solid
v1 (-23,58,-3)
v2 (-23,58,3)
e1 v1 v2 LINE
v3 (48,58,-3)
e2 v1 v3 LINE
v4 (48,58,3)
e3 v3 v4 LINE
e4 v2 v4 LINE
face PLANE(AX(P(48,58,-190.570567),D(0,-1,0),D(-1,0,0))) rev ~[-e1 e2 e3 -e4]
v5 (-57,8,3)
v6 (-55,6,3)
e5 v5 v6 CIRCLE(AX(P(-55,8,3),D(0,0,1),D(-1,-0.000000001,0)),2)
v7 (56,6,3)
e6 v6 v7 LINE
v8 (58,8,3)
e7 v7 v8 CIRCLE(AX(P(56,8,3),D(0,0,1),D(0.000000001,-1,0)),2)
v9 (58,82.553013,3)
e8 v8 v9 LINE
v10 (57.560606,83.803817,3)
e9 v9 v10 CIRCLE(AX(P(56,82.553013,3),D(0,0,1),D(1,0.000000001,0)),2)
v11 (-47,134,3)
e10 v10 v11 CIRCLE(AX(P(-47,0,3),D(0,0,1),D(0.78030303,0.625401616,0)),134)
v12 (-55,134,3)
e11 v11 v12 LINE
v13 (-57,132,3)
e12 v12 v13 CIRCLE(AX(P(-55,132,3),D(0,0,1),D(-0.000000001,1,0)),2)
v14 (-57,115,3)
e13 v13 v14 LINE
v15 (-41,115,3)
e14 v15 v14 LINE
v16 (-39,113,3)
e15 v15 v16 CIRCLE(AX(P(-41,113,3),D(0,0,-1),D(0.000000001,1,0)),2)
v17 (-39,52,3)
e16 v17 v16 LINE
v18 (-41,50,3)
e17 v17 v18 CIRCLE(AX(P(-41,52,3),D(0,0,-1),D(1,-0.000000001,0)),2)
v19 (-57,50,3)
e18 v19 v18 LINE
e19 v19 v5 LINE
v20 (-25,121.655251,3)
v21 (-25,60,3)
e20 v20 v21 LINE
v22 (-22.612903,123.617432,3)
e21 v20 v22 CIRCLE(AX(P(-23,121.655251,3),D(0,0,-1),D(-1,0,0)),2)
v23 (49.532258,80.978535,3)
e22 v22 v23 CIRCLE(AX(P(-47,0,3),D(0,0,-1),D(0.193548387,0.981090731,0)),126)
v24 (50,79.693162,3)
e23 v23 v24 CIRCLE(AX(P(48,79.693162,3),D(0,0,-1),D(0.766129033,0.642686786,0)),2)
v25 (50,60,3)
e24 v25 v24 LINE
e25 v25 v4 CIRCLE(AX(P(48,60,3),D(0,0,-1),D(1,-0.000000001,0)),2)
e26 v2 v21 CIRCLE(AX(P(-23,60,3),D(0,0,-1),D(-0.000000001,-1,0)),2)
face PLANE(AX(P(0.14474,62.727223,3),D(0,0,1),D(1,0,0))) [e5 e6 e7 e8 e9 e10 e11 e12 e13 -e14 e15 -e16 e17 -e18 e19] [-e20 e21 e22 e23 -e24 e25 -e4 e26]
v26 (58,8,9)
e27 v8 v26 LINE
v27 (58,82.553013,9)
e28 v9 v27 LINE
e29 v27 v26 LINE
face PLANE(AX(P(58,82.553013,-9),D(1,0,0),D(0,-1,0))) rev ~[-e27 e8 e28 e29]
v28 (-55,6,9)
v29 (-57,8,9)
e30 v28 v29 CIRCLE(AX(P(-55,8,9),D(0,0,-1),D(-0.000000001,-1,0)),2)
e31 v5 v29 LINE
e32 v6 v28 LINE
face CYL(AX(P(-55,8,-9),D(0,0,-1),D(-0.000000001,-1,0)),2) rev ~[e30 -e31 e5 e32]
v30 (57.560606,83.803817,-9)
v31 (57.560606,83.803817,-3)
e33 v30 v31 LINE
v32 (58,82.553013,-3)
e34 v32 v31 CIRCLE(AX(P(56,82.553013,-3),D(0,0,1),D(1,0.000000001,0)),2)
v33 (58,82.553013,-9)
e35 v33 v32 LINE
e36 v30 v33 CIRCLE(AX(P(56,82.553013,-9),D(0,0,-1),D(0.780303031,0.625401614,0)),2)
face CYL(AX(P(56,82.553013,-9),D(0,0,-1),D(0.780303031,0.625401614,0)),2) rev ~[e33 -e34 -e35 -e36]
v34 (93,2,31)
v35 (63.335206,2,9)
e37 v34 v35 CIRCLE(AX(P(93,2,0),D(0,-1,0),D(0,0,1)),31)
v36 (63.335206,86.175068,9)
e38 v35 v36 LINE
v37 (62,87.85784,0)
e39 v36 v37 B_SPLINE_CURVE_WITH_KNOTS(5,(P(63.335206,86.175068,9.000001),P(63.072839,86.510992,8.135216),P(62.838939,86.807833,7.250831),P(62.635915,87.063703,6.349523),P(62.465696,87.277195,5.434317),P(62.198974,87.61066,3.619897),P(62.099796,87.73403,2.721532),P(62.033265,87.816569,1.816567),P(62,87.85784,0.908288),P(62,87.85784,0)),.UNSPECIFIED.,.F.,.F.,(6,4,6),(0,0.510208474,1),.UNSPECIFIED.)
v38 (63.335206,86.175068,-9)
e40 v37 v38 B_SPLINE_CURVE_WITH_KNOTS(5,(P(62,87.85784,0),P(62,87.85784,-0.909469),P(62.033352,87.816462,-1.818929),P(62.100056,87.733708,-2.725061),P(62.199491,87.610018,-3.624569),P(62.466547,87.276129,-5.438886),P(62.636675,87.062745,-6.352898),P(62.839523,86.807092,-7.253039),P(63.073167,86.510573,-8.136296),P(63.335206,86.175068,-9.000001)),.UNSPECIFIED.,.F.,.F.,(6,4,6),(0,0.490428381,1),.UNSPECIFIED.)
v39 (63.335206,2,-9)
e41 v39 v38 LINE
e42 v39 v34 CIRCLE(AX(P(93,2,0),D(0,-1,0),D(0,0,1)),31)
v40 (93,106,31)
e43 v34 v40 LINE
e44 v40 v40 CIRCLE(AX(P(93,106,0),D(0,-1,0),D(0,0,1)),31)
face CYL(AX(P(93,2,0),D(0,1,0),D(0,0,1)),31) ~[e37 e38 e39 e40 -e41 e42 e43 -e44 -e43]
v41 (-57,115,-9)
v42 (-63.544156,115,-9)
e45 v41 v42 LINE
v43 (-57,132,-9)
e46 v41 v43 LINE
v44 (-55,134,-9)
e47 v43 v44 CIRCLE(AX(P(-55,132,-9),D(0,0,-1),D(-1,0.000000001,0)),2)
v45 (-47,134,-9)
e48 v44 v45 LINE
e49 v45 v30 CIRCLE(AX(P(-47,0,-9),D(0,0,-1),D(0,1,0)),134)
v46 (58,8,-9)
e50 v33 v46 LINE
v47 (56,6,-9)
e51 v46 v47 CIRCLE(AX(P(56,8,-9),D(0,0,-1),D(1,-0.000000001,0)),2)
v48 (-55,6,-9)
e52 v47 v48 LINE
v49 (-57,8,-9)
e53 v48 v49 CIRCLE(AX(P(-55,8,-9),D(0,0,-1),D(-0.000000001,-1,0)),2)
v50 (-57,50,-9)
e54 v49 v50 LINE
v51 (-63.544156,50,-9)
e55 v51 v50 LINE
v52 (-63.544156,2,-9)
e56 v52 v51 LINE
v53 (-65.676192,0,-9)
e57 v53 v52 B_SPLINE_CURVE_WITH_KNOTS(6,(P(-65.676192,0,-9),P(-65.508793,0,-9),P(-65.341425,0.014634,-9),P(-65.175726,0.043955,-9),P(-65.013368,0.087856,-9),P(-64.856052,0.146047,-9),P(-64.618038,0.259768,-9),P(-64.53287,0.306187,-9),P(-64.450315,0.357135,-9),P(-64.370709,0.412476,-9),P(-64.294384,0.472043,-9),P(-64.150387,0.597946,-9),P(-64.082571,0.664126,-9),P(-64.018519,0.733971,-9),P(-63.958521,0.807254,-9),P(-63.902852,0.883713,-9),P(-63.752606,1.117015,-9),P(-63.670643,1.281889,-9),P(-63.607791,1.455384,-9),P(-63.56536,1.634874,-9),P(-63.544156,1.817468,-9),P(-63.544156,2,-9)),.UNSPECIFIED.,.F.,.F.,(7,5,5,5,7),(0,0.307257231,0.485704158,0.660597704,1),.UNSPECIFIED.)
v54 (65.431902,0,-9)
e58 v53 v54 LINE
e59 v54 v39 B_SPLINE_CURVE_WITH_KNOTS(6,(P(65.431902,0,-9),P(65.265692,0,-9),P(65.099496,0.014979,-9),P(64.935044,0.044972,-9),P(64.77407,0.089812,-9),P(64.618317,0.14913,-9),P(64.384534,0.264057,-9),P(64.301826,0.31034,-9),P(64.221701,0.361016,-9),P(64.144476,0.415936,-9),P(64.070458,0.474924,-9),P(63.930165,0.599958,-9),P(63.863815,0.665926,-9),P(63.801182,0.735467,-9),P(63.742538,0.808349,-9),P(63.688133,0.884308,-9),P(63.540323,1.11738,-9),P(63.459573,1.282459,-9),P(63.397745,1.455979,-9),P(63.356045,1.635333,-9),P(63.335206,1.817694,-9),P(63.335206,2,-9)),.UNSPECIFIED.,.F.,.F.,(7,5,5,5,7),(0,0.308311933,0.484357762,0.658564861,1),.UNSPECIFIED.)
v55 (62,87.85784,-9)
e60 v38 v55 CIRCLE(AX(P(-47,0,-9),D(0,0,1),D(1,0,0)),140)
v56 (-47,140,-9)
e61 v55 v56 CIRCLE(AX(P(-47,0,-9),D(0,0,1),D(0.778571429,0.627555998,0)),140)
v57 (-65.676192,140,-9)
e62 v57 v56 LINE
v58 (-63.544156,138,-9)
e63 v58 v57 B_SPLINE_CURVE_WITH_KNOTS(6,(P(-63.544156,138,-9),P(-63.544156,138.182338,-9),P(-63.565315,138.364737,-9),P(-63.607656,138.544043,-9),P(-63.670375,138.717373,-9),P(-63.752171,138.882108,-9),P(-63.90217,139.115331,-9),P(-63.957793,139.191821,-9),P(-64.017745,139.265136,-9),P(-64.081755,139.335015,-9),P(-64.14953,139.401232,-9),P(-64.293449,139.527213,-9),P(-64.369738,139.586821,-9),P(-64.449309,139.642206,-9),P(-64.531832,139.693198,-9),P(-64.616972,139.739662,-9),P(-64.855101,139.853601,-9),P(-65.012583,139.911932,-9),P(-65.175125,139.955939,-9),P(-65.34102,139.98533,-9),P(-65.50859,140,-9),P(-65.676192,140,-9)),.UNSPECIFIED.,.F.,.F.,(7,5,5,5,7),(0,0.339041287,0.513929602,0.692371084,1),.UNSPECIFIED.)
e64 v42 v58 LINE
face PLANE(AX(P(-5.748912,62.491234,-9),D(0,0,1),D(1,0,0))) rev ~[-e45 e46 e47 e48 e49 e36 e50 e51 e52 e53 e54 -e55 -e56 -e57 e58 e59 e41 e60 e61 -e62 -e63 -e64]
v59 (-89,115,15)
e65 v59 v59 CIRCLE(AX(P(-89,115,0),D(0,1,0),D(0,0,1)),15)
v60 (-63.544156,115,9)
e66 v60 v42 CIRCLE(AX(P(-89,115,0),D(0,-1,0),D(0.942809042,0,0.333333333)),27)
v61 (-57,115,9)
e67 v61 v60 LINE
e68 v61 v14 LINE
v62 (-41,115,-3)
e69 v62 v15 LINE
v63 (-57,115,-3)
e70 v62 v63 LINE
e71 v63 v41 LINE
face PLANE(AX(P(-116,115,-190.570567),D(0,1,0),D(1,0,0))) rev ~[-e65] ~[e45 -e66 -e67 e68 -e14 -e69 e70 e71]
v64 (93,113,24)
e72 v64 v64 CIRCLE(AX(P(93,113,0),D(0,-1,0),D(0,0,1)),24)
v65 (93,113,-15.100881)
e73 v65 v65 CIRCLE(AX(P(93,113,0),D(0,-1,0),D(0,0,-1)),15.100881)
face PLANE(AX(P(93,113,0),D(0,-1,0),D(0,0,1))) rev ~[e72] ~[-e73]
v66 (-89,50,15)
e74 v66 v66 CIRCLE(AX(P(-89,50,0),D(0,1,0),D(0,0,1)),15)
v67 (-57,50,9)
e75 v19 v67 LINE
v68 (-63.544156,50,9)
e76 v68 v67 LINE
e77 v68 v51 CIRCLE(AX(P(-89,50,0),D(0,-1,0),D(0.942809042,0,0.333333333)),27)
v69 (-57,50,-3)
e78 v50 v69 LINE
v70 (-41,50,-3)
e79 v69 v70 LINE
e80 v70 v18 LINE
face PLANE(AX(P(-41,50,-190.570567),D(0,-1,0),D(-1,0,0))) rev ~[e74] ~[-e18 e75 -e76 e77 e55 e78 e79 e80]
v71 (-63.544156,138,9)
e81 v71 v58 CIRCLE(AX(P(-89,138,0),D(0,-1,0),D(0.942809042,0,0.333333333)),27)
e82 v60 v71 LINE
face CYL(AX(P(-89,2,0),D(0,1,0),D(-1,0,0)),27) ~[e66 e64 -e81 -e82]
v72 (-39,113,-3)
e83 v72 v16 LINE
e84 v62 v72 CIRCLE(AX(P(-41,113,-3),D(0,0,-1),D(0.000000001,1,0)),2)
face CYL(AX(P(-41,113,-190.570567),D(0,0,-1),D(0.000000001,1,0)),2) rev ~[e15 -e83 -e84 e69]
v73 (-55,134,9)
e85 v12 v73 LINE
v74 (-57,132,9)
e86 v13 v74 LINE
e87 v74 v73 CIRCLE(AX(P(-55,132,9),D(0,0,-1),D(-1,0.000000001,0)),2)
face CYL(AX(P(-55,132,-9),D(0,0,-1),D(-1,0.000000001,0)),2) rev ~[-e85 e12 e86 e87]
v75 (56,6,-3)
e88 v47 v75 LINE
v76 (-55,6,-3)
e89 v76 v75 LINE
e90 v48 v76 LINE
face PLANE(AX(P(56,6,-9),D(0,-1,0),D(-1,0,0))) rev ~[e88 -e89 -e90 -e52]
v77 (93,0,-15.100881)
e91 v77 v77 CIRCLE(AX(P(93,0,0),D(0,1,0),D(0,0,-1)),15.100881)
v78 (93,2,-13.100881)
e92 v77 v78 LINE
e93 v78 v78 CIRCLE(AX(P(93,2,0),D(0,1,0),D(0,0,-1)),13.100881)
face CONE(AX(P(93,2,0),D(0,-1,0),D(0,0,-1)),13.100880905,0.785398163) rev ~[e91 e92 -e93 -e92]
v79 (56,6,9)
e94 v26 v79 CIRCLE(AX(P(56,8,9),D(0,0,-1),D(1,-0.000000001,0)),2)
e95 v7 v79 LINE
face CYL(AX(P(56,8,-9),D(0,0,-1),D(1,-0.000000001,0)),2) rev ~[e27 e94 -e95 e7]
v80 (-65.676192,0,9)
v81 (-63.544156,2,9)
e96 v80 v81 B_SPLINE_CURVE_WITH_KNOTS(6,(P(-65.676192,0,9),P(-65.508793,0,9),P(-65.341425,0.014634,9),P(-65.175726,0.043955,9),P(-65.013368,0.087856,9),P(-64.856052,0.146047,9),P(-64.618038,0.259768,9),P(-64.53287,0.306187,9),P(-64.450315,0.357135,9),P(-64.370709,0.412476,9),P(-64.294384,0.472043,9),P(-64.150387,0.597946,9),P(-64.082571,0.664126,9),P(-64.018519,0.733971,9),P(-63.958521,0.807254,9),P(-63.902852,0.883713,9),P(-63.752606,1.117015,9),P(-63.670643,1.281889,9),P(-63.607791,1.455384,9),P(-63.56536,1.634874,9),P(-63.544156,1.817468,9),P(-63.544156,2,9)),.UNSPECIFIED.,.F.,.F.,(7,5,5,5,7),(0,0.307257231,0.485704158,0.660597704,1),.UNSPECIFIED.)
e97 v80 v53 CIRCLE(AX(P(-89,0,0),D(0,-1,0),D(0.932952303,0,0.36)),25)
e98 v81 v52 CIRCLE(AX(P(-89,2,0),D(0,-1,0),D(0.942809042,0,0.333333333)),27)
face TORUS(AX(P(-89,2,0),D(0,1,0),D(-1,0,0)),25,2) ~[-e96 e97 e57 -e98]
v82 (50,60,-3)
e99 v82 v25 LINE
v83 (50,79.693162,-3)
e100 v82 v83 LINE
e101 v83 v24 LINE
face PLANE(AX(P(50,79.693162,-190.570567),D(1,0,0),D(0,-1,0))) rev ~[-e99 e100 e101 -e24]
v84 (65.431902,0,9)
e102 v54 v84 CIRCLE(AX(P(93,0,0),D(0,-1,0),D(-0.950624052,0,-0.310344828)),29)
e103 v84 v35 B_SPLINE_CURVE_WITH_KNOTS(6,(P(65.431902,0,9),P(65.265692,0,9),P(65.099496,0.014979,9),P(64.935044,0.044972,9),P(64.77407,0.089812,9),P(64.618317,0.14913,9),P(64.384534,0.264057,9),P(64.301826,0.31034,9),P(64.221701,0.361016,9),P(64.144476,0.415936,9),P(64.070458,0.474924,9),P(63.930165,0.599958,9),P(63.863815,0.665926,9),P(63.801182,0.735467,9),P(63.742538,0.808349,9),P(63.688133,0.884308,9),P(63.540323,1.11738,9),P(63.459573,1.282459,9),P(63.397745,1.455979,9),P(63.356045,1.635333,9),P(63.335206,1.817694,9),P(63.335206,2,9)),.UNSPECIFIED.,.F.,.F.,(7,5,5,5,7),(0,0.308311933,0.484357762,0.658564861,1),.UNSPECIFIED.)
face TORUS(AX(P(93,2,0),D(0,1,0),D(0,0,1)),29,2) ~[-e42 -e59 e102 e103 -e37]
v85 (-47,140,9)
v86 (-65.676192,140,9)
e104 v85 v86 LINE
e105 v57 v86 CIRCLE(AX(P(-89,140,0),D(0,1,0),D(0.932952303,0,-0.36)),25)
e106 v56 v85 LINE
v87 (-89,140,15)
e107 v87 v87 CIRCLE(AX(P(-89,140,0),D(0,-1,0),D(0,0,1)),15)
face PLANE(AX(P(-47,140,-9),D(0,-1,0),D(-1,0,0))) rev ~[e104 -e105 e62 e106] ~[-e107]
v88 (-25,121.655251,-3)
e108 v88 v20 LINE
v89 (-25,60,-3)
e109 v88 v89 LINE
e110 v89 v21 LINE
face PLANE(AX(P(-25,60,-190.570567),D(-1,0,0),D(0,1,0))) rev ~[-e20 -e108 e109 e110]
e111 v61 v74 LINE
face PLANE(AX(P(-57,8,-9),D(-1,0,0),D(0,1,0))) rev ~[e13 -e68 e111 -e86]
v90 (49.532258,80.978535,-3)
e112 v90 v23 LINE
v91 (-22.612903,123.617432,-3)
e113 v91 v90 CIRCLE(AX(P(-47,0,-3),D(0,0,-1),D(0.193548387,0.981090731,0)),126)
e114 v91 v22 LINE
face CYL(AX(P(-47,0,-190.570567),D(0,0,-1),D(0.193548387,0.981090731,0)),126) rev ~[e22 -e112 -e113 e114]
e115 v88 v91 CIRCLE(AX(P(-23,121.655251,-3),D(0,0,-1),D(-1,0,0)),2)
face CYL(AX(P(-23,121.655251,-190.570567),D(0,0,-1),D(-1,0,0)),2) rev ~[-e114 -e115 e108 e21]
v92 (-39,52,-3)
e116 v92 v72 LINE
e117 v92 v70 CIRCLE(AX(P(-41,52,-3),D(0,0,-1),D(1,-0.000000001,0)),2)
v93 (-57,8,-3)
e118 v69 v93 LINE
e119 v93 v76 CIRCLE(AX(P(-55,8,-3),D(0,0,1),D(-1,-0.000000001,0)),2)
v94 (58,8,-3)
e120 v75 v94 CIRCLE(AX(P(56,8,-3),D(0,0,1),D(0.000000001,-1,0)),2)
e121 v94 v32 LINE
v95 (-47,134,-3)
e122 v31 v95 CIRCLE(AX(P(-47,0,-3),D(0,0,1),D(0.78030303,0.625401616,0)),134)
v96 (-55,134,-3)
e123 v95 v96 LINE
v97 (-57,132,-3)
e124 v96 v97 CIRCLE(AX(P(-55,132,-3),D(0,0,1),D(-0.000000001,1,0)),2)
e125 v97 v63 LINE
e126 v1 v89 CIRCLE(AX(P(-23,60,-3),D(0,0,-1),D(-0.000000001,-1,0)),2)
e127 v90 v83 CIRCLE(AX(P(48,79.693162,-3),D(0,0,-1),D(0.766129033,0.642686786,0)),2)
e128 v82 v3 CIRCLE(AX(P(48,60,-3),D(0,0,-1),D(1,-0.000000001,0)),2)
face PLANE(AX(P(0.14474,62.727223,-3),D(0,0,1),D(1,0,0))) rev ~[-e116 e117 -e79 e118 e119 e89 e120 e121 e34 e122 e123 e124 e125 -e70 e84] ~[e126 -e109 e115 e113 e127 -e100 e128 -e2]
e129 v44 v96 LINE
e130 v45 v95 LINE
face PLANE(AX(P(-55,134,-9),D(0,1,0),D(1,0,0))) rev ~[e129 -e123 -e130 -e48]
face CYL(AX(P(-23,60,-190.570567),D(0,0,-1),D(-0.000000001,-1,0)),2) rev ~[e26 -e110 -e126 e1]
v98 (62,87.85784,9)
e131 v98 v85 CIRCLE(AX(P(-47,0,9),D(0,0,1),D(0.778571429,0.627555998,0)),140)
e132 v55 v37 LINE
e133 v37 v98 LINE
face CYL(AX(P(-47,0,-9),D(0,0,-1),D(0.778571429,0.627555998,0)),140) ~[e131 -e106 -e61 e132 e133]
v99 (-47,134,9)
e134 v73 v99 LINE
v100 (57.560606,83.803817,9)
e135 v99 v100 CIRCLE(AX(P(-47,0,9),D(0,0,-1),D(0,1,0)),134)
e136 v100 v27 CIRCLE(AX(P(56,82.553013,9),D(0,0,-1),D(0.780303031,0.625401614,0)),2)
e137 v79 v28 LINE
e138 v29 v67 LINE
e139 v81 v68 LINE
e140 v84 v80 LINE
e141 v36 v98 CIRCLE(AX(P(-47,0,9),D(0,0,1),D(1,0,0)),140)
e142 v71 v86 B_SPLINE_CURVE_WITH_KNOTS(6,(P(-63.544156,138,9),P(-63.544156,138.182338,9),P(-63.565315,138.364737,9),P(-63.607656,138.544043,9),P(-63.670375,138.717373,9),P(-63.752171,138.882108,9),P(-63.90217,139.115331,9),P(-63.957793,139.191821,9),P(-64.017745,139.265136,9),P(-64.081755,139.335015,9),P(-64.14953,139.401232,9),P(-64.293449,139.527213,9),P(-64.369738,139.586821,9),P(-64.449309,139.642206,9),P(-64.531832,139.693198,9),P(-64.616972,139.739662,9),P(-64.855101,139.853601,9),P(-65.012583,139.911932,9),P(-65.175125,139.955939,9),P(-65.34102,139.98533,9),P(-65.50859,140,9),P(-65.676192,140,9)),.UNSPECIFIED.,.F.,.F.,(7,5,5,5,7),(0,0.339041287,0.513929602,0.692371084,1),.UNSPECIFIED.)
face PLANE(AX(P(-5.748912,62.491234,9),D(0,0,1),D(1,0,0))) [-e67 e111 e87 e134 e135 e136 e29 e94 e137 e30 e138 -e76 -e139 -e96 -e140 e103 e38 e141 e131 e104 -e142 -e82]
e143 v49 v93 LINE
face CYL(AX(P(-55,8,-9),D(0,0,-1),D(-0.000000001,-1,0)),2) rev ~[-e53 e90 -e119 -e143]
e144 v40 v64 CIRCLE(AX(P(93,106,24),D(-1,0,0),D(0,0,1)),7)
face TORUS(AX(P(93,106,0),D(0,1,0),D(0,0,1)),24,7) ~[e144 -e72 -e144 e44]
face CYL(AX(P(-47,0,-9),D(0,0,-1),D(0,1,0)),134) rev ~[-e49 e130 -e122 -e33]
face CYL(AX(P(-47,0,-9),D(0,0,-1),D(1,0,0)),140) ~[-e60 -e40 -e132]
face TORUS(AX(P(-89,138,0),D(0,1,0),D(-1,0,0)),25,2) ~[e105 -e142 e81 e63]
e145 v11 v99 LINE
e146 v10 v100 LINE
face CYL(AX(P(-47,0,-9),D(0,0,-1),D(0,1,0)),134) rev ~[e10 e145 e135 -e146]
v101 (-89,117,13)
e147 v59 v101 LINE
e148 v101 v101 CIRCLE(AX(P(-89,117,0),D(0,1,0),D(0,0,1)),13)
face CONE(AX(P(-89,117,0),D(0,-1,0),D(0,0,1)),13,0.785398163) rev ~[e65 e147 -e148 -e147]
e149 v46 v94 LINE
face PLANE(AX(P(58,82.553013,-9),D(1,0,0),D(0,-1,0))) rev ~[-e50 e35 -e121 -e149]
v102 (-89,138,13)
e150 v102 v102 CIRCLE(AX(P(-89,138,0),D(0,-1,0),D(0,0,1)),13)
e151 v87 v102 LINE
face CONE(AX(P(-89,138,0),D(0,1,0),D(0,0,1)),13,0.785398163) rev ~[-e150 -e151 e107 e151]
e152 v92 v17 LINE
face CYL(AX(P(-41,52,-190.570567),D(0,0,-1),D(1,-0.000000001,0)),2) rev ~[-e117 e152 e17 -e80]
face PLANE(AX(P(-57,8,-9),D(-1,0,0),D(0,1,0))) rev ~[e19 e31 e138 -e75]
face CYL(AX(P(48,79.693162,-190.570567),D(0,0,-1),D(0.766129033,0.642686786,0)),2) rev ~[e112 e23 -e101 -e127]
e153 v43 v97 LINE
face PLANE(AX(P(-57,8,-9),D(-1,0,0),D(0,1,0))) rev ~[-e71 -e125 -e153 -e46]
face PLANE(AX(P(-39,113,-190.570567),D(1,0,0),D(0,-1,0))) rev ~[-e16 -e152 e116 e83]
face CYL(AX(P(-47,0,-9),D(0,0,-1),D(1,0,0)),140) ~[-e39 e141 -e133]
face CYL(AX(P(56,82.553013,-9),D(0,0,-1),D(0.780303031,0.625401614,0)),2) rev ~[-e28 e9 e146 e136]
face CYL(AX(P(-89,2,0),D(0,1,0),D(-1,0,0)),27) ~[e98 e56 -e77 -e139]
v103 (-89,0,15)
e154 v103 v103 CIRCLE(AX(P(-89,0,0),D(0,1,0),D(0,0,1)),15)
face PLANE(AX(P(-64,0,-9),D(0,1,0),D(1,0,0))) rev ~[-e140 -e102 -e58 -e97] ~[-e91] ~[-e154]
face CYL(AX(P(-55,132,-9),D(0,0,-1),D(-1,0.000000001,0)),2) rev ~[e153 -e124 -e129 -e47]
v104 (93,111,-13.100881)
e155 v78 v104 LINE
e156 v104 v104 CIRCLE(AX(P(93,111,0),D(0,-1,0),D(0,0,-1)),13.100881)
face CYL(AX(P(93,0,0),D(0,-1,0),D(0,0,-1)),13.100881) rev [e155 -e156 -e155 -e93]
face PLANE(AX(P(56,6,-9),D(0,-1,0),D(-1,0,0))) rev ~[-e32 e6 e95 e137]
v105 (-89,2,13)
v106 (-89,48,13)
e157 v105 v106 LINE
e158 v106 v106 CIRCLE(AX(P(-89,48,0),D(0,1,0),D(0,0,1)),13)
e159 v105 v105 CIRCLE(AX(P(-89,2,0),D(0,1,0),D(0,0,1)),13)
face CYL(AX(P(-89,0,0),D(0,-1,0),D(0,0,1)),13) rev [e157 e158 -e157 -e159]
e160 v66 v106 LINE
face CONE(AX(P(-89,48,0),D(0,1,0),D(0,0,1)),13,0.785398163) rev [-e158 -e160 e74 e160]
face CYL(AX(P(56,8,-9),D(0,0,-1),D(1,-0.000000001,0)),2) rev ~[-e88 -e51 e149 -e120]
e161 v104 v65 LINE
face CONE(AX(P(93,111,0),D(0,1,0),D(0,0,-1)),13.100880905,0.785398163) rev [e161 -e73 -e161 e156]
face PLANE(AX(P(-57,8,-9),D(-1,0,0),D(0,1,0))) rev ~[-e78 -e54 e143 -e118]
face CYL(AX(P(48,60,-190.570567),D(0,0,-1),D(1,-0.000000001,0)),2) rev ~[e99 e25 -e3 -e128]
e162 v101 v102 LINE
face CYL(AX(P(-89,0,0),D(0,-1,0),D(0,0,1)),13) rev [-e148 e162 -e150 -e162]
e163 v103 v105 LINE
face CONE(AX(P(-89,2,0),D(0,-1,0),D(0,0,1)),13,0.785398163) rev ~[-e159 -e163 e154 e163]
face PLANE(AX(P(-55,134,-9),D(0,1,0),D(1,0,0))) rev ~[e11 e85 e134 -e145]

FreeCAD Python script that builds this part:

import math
import FreeCAD as App
import Part
import Sketcher
Q = App.Units.Quantity


def edges_at(feature, points):
    """Names of the edges that pass closest to the given points."""
    edges = feature.Shape.Edges
    near = lambda p: min(range(len(edges)), key=lambda i: edges[i].distToShape(Part.Vertex(*p))[0])
    return sorted({f"Edge{near(p) + 1}" for p in points})

doc = App.newDocument("Part")
params = doc.addObject("Spreadsheet::Sheet", "Params")
for row, (alias, value) in enumerate([
    ("sketch1_radius", "2 mm"),
    ("sketch1_width", "25 mm"),
    ("sketch1_height", "136 mm"),
    ("revolution_angle", "360 deg"),
    ("sketch2_radius", "2 mm"),
    ("sketch2_radius2", "126 mm"),
    ("sketch2_width", "75 mm"),
    ("sketch2_width2", "71 mm"),
    ("sketch2_height", "65 mm"),
    ("sketch3_radius", "2 mm"),
    ("sketch3_radius2", "7 mm"),
    ("sketch3_width", "29 mm"),
    ("sketch3_height", "104 mm"),
    ("revolution2_angle", "360 deg"),
    ("sketch4_radius", "140 mm"),
    ("sketch4_radius2", "2 mm"),
    ("sketch4_radius3", "134 mm"),
    ("sketch4_width", "42 mm"),
    ("sketch4_width2", "111 mm"),
    ("pad1_length", "9 mm"),
    ("pad1_length2", "9 mm"),
    ("sketch5_radius", "2 mm"),
    ("sketch5_radius2", "134 mm"),
    ("sketch5_width", "8 mm"),
    ("sketch5_width2", "111 mm"),
    ("sketch5_height", "124 mm"),
    ("pad2_length", "3 mm"),
    ("pad2_length2", "3 mm"),
    ("sketch6_diameter", "26 mm"),
    ("sketch7_radius", "2 mm"),
    ("sketch7_radius2", "126 mm"),
    ("sketch7_width", "75 mm"),
    ("sketch7_width2", "71 mm"),
    ("sketch7_height", "65 mm"),
    ("chamfer_size", "2 mm"),
    ("chamfer2_size", "2 mm"),
    ("chamfer3_size", "2 mm"),
], start=1):
    params.set(f"A{row}", alias)
    params.set(f"B{row}", "=" + value)
    params.setAlias(f"B{row}", alias)

body = doc.addObject("PartDesign::Body", "Body")

# Sketch on XY plane
sketch1 = body.newObject("Sketcher::SketchObject", "Sketch")
sketch1.AttachmentSupport = (doc.getObject("XY_Plane"), [""])
sketch1.MapMode = "FlatFace"
sketch1.addGeometry([
    Part.LineSegment(App.Vector(-62, 2, 0), App.Vector(-62, 138, 0)),  # 0
    Part.ArcOfCircle(Part.Circle(App.Vector(-64, 138, 0), App.Vector(0, 0, 1), 2), math.radians(0), math.radians(90)),  # 1
    Part.LineSegment(App.Vector(-64, 140, 0), App.Vector(-89, 140, 0)),  # 2
    Part.LineSegment(App.Vector(-89, 140, 0), App.Vector(-89, 0, 0)),  # 3
    Part.LineSegment(App.Vector(-89, 0, 0), App.Vector(-64, 0, 0)),  # 4
    Part.ArcOfCircle(Part.Circle(App.Vector(-64, 2, 0), App.Vector(0, 0, 1), 2), math.radians(-90), math.radians(0)),  # 5
], False)
sketch1.addGeometry(Part.LineSegment(App.Vector(-89, 140, 0), App.Vector(-89, 0, 0)), True)  # axis
sketch1.addConstraint([
    Sketcher.Constraint("Tangent", 0, 2, 1, 1),
    Sketcher.Constraint("Tangent", 1, 2, 2, 1),
    Sketcher.Constraint("Coincident", 2, 2, 3, 1),
    Sketcher.Constraint("Coincident", 3, 2, 4, 1),
    Sketcher.Constraint("Tangent", 4, 2, 5, 1),
    Sketcher.Constraint("Tangent", 5, 2, 0, 1),
    Sketcher.Constraint("Vertical", 0),
    Sketcher.Constraint("Horizontal", 2),
    Sketcher.Constraint("Vertical", 3),
    Sketcher.Constraint("Horizontal", 4),
    Sketcher.Constraint("Vertical", 6),
    Sketcher.Constraint("Coincident", 6, 1, 2, 2),
    Sketcher.Constraint("Equal", 1, 5),
    Sketcher.Constraint("PointOnObject", 3, 2, -1),
    Sketcher.Constraint("PointOnObject", 6, 2, -1),
    Sketcher.Constraint("Radius", 1, Q("2 mm")),
    Sketcher.Constraint("DistanceX", 2, 2, 2, 1, Q("25 mm")),
    Sketcher.Constraint("DistanceY", 0, 1, 0, 2, Q("136 mm")),
    Sketcher.Constraint("DistanceX", 1, 3, -1, 1, Q("64 mm")),
])
sketch1.setExpression("Constraints[15]", "Params.sketch1_radius")
sketch1.setExpression("Constraints[16]", "Params.sketch1_width")
sketch1.setExpression("Constraints[17]", "Params.sketch1_height")
revolution = body.newObject("PartDesign::Revolution", "Revolution")
revolution.Profile = sketch1
revolution.ReferenceAxis = (sketch1, ["Axis0"])
revolution.setExpression("Angle", "Params.revolution_angle")

# Sketch on XY plane
sketch2 = body.newObject("Sketcher::SketchObject", "Sketch001")
sketch2.AttachmentSupport = (doc.getObject("XY_Plane"), [""])
sketch2.MapMode = "FlatFace"
sketch2.addGeometry([
    Part.LineSegment(App.Vector(-41, 115, 0), App.Vector(-116, 115, 0)),  # 0
    Part.LineSegment(App.Vector(-116, 115, 0), App.Vector(-116, 50, 0)),  # 1
    Part.LineSegment(App.Vector(-116, 50, 0), App.Vector(-41, 50, 0)),  # 2
    Part.ArcOfCircle(Part.Circle(App.Vector(-41, 52, 0), App.Vector(0, 0, 1), 2), math.radians(-90), math.radians(0)),  # 3
    Part.LineSegment(App.Vector(-39, 52, 0), App.Vector(-39, 113, 0)),  # 4
    Part.ArcOfCircle(Part.Circle(App.Vector(-41, 113, 0), App.Vector(0, 0, 1), 2), math.radians(0), math.radians(90)),  # 5
    Part.LineSegment(App.Vector(50, 60, 0), App.Vector(50, 79.7, 0)),  # 6
    Part.ArcOfCircle(Part.Circle(App.Vector(48, 79.7, 0), App.Vector(0, 0, 1), 2), math.radians(0), math.radians(40)),  # 7
    Part.ArcOfCircle(Part.Circle(App.Vector(-47, 0, 0), App.Vector(0, 0, 1), 126), math.radians(40), math.radians(79)),  # 8
    Part.ArcOfCircle(Part.Circle(App.Vector(-23, 121.7, 0), App.Vector(0, 0, 1), 2), math.radians(79), math.radians(180)),  # 9
    Part.LineSegment(App.Vector(-25, 121.7, 0), App.Vector(-25, 60, 0)),  # 10
    Part.ArcOfCircle(Part.Circle(App.Vector(-23, 60, 0), App.Vector(0, 0, 1), 2), math.radians(-180), math.radians(-90)),  # 11
    Part.LineSegment(App.Vector(-23, 58, 0), App.Vector(48, 58, 0)),  # 12
    Part.ArcOfCircle(Part.Circle(App.Vector(48, 60, 0), App.Vector(0, 0, 1), 2), math.radians(-90), math.radians(0)),  # 13
], False)
sketch2.addConstraint([
    Sketcher.Constraint("Coincident", 0, 2, 1, 1),
    Sketcher.Constraint("Coincident", 1, 2, 2, 1),
    Sketcher.Constraint("Tangent", 2, 2, 3, 1),
    Sketcher.Constraint("Tangent", 3, 2, 4, 1),
    Sketcher.Constraint("Tangent", 4, 2, 5, 1),
    Sketcher.Constraint("Tangent", 5, 2, 0, 1),
    Sketcher.Constraint("Tangent", 6, 2, 7, 1),
    Sketcher.Constraint("Tangent", 7, 2, 8, 1),
    Sketcher.Constraint("Tangent", 8, 2, 9, 1),
    Sketcher.Constraint("Tangent", 9, 2, 10, 1),
    Sketcher.Constraint("Tangent", 10, 2, 11, 1),
    Sketcher.Constraint("Tangent", 11, 2, 12, 1),
    Sketcher.Constraint("Tangent", 12, 2, 13, 1),
    Sketcher.Constraint("Tangent", 13, 2, 6, 1),
    Sketcher.Constraint("Horizontal", 0),
    Sketcher.Constraint("Vertical", 1),
    Sketcher.Constraint("Horizontal", 2),
    Sketcher.Constraint("Vertical", 4),
    Sketcher.Constraint("Vertical", 6),
    Sketcher.Constraint("Vertical", 10),
    Sketcher.Constraint("Horizontal", 12),
    Sketcher.Constraint("Equal", 3, 5),
    Sketcher.Constraint("Equal", 5, 7),
    Sketcher.Constraint("Equal", 7, 9),
    Sketcher.Constraint("Equal", 9, 11),
    Sketcher.Constraint("Equal", 11, 13),
    Sketcher.Constraint("PointOnObject", 8, 3, -1),
    Sketcher.Constraint("Radius", 3, Q("2 mm")),
    Sketcher.Constraint("Radius", 8, Q("126 mm")),
    Sketcher.Constraint("DistanceX", 0, 2, 0, 1, Q("75 mm")),
    Sketcher.Constraint("DistanceX", 12, 1, 12, 2, Q("71 mm")),
    Sketcher.Constraint("DistanceY", 1, 2, 1, 1, Q("65 mm")),
    Sketcher.Constraint("DistanceX", 3, 3, -1, 1, Q("41 mm")),
    Sketcher.Constraint("DistanceY", -1, 1, 3, 3, Q("52 mm")),
    Sketcher.Constraint("DistanceX", -1, 1, 7, 3, Q("48 mm")),
    Sketcher.Constraint("DistanceX", 8, 3, -1, 1, Q("47 mm")),
    Sketcher.Constraint("DistanceY", -1, 1, 11, 3, Q("60 mm")),
])
sketch2.setExpression("Constraints[27]", "Params.sketch2_radius")
sketch2.setExpression("Constraints[28]", "Params.sketch2_radius2")
sketch2.setExpression("Constraints[29]", "Params.sketch2_width")
sketch2.setExpression("Constraints[30]", "Params.sketch2_width2")
sketch2.setExpression("Constraints[31]", "Params.sketch2_height")
pocket1 = body.newObject("PartDesign::Pocket", "Pocket")
pocket1.Profile = sketch2
pocket1.Type = "ThroughAll"
body2 = doc.addObject("PartDesign::Body", "Body001")

# Sketch on XY plane
sketch3 = body2.newObject("Sketcher::SketchObject", "Sketch002")
sketch3.AttachmentSupport = (doc.getObject("XY_Plane001"), [""])
sketch3.MapMode = "FlatFace"
sketch3.addGeometry([
    Part.LineSegment(App.Vector(62, 106, 0), App.Vector(62, 2, 0)),  # 0
    Part.ArcOfCircle(Part.Circle(App.Vector(64, 2, 0), App.Vector(0, 0, 1), 2), math.radians(-180), math.radians(-90)),  # 1
    Part.LineSegment(App.Vector(64, 0, 0), App.Vector(93, 0, 0)),  # 2
    Part.LineSegment(App.Vector(93, 0, 0), App.Vector(93, 113, 0)),  # 3
    Part.LineSegment(App.Vector(93, 113, 0), App.Vector(69, 113, 0)),  # 4
    Part.ArcOfCircle(Part.Circle(App.Vector(69, 106, 0), App.Vector(0, 0, 1), 7), math.radians(90), math.radians(180)),  # 5
], False)
sketch3.addGeometry(Part.LineSegment(App.Vector(93, 113, 0), App.Vector(93, 0, 0)), True)  # axis
sketch3.addConstraint([
    Sketcher.Constraint("Tangent", 0, 2, 1, 1),
    Sketcher.Constraint("Tangent", 1, 2, 2, 1),
    Sketcher.Constraint("Coincident", 2, 2, 3, 1),
    Sketcher.Constraint("Coincident", 3, 2, 4, 1),
    Sketcher.Constraint("Tangent", 4, 2, 5, 1),
    Sketcher.Constraint("Tangent", 5, 2, 0, 1),
    Sketcher.Constraint("Vertical", 0),
    Sketcher.Constraint("Horizontal", 2),
    Sketcher.Constraint("Vertical", 3),
    Sketcher.Constraint("Horizontal", 4),
    Sketcher.Constraint("Vertical", 6),
    Sketcher.Constraint("Coincident", 6, 1, 3, 2),
    Sketcher.Constraint("PointOnObject", 1, 2, -1),
    Sketcher.Constraint("PointOnObject", 6, 2, -1),
    Sketcher.Constraint("Radius", 1, Q("2 mm")),
    Sketcher.Constraint("Radius", 5, Q("7 mm")),
    Sketcher.Constraint("DistanceX", 2, 1, 2, 2, Q("29 mm")),
    Sketcher.Constraint("DistanceY", 0, 2, 0, 1, Q("104 mm")),
    Sketcher.Constraint("DistanceX", -1, 1, 1, 3, Q("64 mm")),
])
sketch3.setExpression("Constraints[14]", "Params.sketch3_radius")
sketch3.setExpression("Constraints[15]", "Params.sketch3_radius2")
sketch3.setExpression("Constraints[16]", "Params.sketch3_width")
sketch3.setExpression("Constraints[17]", "Params.sketch3_height")
revolution2 = body2.newObject("PartDesign::Revolution", "Revolution001")
revolution2.Profile = sketch3
revolution2.ReferenceAxis = (sketch3, ["Axis0"])
revolution2.setExpression("Angle", "Params.revolution2_angle")
body.AllowCompound = True
doc.recompute()

boolean = body.newObject("PartDesign::Boolean", "Boolean")
boolean.Type = "Fuse"
boolean.addObjects([body2])

# Sketch on XY plane
sketch4 = body.newObject("Sketcher::SketchObject", "Sketch003")
sketch4.AttachmentSupport = (doc.getObject("XY_Plane"), [""])
sketch4.MapMode = "FlatFace"
sketch4.addGeometry([
    Part.ArcOfCircle(Part.Circle(App.Vector(-47, 0, 0), App.Vector(0, 0, 1), 140), math.radians(0), math.radians(39)),  # 0
    Part.ArcOfCircle(Part.Circle(App.Vector(-47, 0, 0), App.Vector(0, 0, 1), 140), math.radians(39), math.radians(90)),  # 1
    Part.LineSegment(App.Vector(-47, 140, 0), App.Vector(-89, 140, 0)),  # 2
    Part.LineSegment(App.Vector(-89, 140, 0), App.Vector(-89, 0, 0)),  # 3
    Part.LineSegment(App.Vector(-89, 0, 0), App.Vector(93, 0, 0)),  # 4
    Part.ArcOfCircle(Part.Circle(App.Vector(56, 8, 0), App.Vector(0, 0, 1), 2), math.radians(-90), math.radians(0)),  # 5
    Part.LineSegment(App.Vector(56, 6, 0), App.Vector(-55, 6, 0)),  # 6
    Part.ArcOfCircle(Part.Circle(App.Vector(-55, 8, 0), App.Vector(0, 0, 1), 2), math.radians(-180), math.radians(-90)),  # 7
    Part.LineSegment(App.Vector(-57, 8, 0), App.Vector(-57, 132, 0)),  # 8
    Part.ArcOfCircle(Part.Circle(App.Vector(-55, 132, 0), App.Vector(0, 0, 1), 2), math.radians(90), math.radians(180)),  # 9
    Part.LineSegment(App.Vector(-55, 134, 0), App.Vector(-47, 134, 0)),  # 10
    Part.ArcOfCircle(Part.Circle(App.Vector(-47, 0, 0), App.Vector(0, 0, 1), 134), math.radians(39), math.radians(90)),  # 11
    Part.ArcOfCircle(Part.Circle(App.Vector(56, 82.6, 0), App.Vector(0, 0, 1), 2), math.radians(0), math.radians(39)),  # 12
    Part.LineSegment(App.Vector(58, 82.6, 0), App.Vector(58, 8, 0)),  # 13
], False)
sketch4.addConstraint([
    Sketcher.Constraint("Tangent", 0, 2, 1, 1),
    Sketcher.Constraint("Tangent", 1, 2, 2, 1),
    Sketcher.Constraint("Coincident", 2, 2, 3, 1),
    Sketcher.Constraint("Coincident", 3, 2, 4, 1),
    Sketcher.Constraint("Coincident", 4, 2, 0, 1),
    Sketcher.Constraint("Tangent", 5, 1, 6, 1),
    Sketcher.Constraint("Tangent", 6, 2, 7, 2),
    Sketcher.Constraint("Tangent", 7, 1, 8, 1),
    Sketcher.Constraint("Tangent", 8, 2, 9, 2),
    Sketcher.Constraint("Tangent", 9, 1, 10, 1),
    Sketcher.Constraint("Tangent", 10, 2, 11, 2),
    Sketcher.Constraint("Tangent", 11, 1, 12, 2),
    Sketcher.Constraint("Tangent", 12, 1, 13, 1),
    Sketcher.Constraint("Tangent", 13, 2, 5, 2),
    Sketcher.Constraint("Horizontal", 2),
    Sketcher.Constraint("Vertical", 3),
    Sketcher.Constraint("Horizontal", 4),
    Sketcher.Constraint("Horizontal", 6),
    Sketcher.Constraint("Vertical", 8),
    Sketcher.Constraint("Horizontal", 10),
    Sketcher.Constraint("Vertical", 13),
    Sketcher.Constraint("Coincident", 11, 3, 0, 3),
    Sketcher.Constraint("Equal", 0, 1),
    Sketcher.Constraint("Equal", 5, 7),
    Sketcher.Constraint("Equal", 7, 9),
    Sketcher.Constraint("Equal", 9, 12),
    Sketcher.Constraint("PointOnObject", 0, 3, -1),
    Sketcher.Constraint("PointOnObject", 3, 2, -1),
    Sketcher.Constraint("Radius", 0, Q("140 mm")),
    Sketcher.Constraint("Radius", 5, Q("2 mm")),
    Sketcher.Constraint("Radius", 11, Q("134 mm")),
    Sketcher.Constraint("DistanceX", 2, 2, 2, 1, Q("42 mm")),
    Sketcher.Constraint("DistanceX", 6, 2, 6, 1, Q("111 mm")),
    Sketcher.Constraint("DistanceX", 10, 1, 10, 2, Q("8 mm")),
    Sketcher.Constraint("DistanceY", 8, 1, 8, 2, Q("124 mm")),
    Sketcher.Constraint("DistanceX", 0, 3, -1, 1, Q("47 mm")),
    Sketcher.Constraint("DistanceX", -1, 1, 0, 2, Q("62 mm")),
])
sketch4.setExpression("Constraints[28]", "Params.sketch4_radius")
sketch4.setExpression("Constraints[29]", "Params.sketch4_radius2")
sketch4.setExpression("Constraints[30]", "Params.sketch4_radius3")
sketch4.setExpression("Constraints[31]", "Params.sketch4_width")
sketch4.setExpression("Constraints[32]", "Params.sketch4_width2")
pad1 = body.newObject("PartDesign::Pad", "Pad")
pad1.Profile = sketch4
pad1.Type = "TwoLengths"
pad1.setExpression("Length", "Params.pad1_length")
pad1.setExpression("Length2", "Params.pad1_length2")

# Sketch on XY plane
sketch5 = body.newObject("Sketcher::SketchObject", "Sketch004")
sketch5.AttachmentSupport = (doc.getObject("XY_Plane"), [""])
sketch5.MapMode = "FlatFace"
sketch5.addGeometry([
    Part.ArcOfCircle(Part.Circle(App.Vector(56, 8, 0), App.Vector(0, 0, 1), 2), math.radians(-90), math.radians(0)),  # 0
    Part.LineSegment(App.Vector(58, 8, 0), App.Vector(58, 82.6, 0)),  # 1
    Part.ArcOfCircle(Part.Circle(App.Vector(56, 82.6, 0), App.Vector(0, 0, 1), 2), math.radians(0), math.radians(39)),  # 2
    Part.ArcOfCircle(Part.Circle(App.Vector(-47, 0, 0), App.Vector(0, 0, 1), 134), math.radians(39), math.radians(90)),  # 3
    Part.LineSegment(App.Vector(-47, 134, 0), App.Vector(-55, 134, 0)),  # 4
    Part.ArcOfCircle(Part.Circle(App.Vector(-55, 132, 0), App.Vector(0, 0, 1), 2), math.radians(90), math.radians(180)),  # 5
    Part.LineSegment(App.Vector(-57, 132, 0), App.Vector(-57, 8, 0)),  # 6
    Part.ArcOfCircle(Part.Circle(App.Vector(-55, 8, 0), App.Vector(0, 0, 1), 2), math.radians(-180), math.radians(-90)),  # 7
    Part.LineSegment(App.Vector(-55, 6, 0), App.Vector(56, 6, 0)),  # 8
], False)
sketch5.addConstraint([
    Sketcher.Constraint("Tangent", 0, 2, 1, 1),
    Sketcher.Constraint("Tangent", 1, 2, 2, 1),
    Sketcher.Constraint("Tangent", 2, 2, 3, 1),
    Sketcher.Constraint("Tangent", 3, 2, 4, 1),
    Sketcher.Constraint("Tangent", 4, 2, 5, 1),
    Sketcher.Constraint("Tangent", 5, 2, 6, 1),
    Sketcher.Constraint("Tangent", 6, 2, 7, 1),
    Sketcher.Constraint("Tangent", 7, 2, 8, 1),
    Sketcher.Constraint("Tangent", 8, 2, 0, 1),
    Sketcher.Constraint("Vertical", 1),
    Sketcher.Constraint("Horizontal", 4),
    Sketcher.Constraint("Vertical", 6),
    Sketcher.Constraint("Horizontal", 8),
    Sketcher.Constraint("Equal", 0, 2),
    Sketcher.Constraint("Equal", 2, 5),
    Sketcher.Constraint("Equal", 5, 7),
    Sketcher.Constraint("PointOnObject", 3, 3, -1),
    Sketcher.Constraint("Radius", 0, Q("2 mm")),
    Sketcher.Constraint("Radius", 3, Q("134 mm")),
    Sketcher.Constraint("DistanceX", 4, 2, 4, 1, Q("8 mm")),
    Sketcher.Constraint("DistanceX", 8, 1, 8, 2, Q("111 mm")),
    Sketcher.Constraint("DistanceY", 6, 2, 6, 1, Q("124 mm")),
    Sketcher.Constraint("DistanceX", -1, 1, 0, 3, Q("56 mm")),
])
sketch5.setExpression("Constraints[17]", "Params.sketch5_radius")
sketch5.setExpression("Constraints[18]", "Params.sketch5_radius2")
sketch5.setExpression("Constraints[19]", "Params.sketch5_width")
sketch5.setExpression("Constraints[20]", "Params.sketch5_width2")
sketch5.setExpression("Constraints[21]", "Params.sketch5_height")
pad2 = body.newObject("PartDesign::Pad", "Pad001")
pad2.Profile = sketch5
pad2.Type = "TwoLengths"
pad2.setExpression("Length", "Params.pad2_length")
pad2.setExpression("Length2", "Params.pad2_length2")

# Sketch on XZ plane
sketch6 = body.newObject("Sketcher::SketchObject", "Sketch005")
sketch6.AttachmentSupport = (doc.getObject("XZ_Plane"), [""])
sketch6.MapMode = "FlatFace"
sketch6.addGeometry([
    Part.Circle(App.Vector(-89, 0, 0), App.Vector(0, 0, 1), 13),
    Part.Circle(App.Vector(93, 0, 0), App.Vector(0, 0, 1), 13),
], False)
sketch6.addConstraint([
    Sketcher.Constraint("PointOnObject", 0, 3, -1),
    Sketcher.Constraint("PointOnObject", 1, 3, -1),
    Sketcher.Constraint("Diameter", 0, Q("26 mm")),
    Sketcher.Constraint("DistanceX", 0, 3, -1, 1, Q("89 mm")),
    Sketcher.Constraint("DistanceX", -1, 1, 1, 3, Q("93 mm")),
    Sketcher.Constraint("Diameter", 1, Q("26.201762 mm")),
])
sketch6.setExpression("Constraints[2]", "Params.sketch6_diameter")
pocket2 = body.newObject("PartDesign::Pocket", "Pocket001")
pocket2.Profile = sketch6
pocket2.Type = "ThroughAll"

# Sketch on XY plane
sketch7 = body.newObject("Sketcher::SketchObject", "Sketch006")
sketch7.AttachmentSupport = (doc.getObject("XY_Plane"), [""])
sketch7.MapMode = "FlatFace"
sketch7.addGeometry([
    Part.LineSegment(App.Vector(-41, 115, 0), App.Vector(-116, 115, 0)),  # 0
    Part.LineSegment(App.Vector(-116, 115, 0), App.Vector(-116, 50, 0)),  # 1
    Part.LineSegment(App.Vector(-116, 50, 0), App.Vector(-41, 50, 0)),  # 2
    Part.ArcOfCircle(Part.Circle(App.Vector(-41, 52, 0), App.Vector(0, 0, 1), 2), math.radians(-90), math.radians(0)),  # 3
    Part.LineSegment(App.Vector(-39, 52, 0), App.Vector(-39, 113, 0)),  # 4
    Part.ArcOfCircle(Part.Circle(App.Vector(-41, 113, 0), App.Vector(0, 0, 1), 2), math.radians(0), math.radians(90)),  # 5
    Part.LineSegment(App.Vector(50, 60, 0), App.Vector(50, 79.7, 0)),  # 6
    Part.ArcOfCircle(Part.Circle(App.Vector(48, 79.7, 0), App.Vector(0, 0, 1), 2), math.radians(0), math.radians(40)),  # 7
    Part.ArcOfCircle(Part.Circle(App.Vector(-47, 0, 0), App.Vector(0, 0, 1), 126), math.radians(40), math.radians(79)),  # 8
    Part.ArcOfCircle(Part.Circle(App.Vector(-23, 121.7, 0), App.Vector(0, 0, 1), 2), math.radians(79), math.radians(180)),  # 9
    Part.LineSegment(App.Vector(-25, 121.7, 0), App.Vector(-25, 60, 0)),  # 10
    Part.ArcOfCircle(Part.Circle(App.Vector(-23, 60, 0), App.Vector(0, 0, 1), 2), math.radians(-180), math.radians(-90)),  # 11
    Part.LineSegment(App.Vector(-23, 58, 0), App.Vector(48, 58, 0)),  # 12
    Part.ArcOfCircle(Part.Circle(App.Vector(48, 60, 0), App.Vector(0, 0, 1), 2), math.radians(-90), math.radians(0)),  # 13
], False)
sketch7.addConstraint([
    Sketcher.Constraint("Coincident", 0, 2, 1, 1),
    Sketcher.Constraint("Coincident", 1, 2, 2, 1),
    Sketcher.Constraint("Tangent", 2, 2, 3, 1),
    Sketcher.Constraint("Tangent", 3, 2, 4, 1),
    Sketcher.Constraint("Tangent", 4, 2, 5, 1),
    Sketcher.Constraint("Tangent", 5, 2, 0, 1),
    Sketcher.Constraint("Tangent", 6, 2, 7, 1),
    Sketcher.Constraint("Tangent", 7, 2, 8, 1),
    Sketcher.Constraint("Tangent", 8, 2, 9, 1),
    Sketcher.Constraint("Tangent", 9, 2, 10, 1),
    Sketcher.Constraint("Tangent", 10, 2, 11, 1),
    Sketcher.Constraint("Tangent", 11, 2, 12, 1),
    Sketcher.Constraint("Tangent", 12, 2, 13, 1),
    Sketcher.Constraint("Tangent", 13, 2, 6, 1),
    Sketcher.Constraint("Horizontal", 0),
    Sketcher.Constraint("Vertical", 1),
    Sketcher.Constraint("Horizontal", 2),
    Sketcher.Constraint("Vertical", 4),
    Sketcher.Constraint("Vertical", 6),
    Sketcher.Constraint("Vertical", 10),
    Sketcher.Constraint("Horizontal", 12),
    Sketcher.Constraint("Equal", 3, 5),
    Sketcher.Constraint("Equal", 5, 7),
    Sketcher.Constraint("Equal", 7, 9),
    Sketcher.Constraint("Equal", 9, 11),
    Sketcher.Constraint("Equal", 11, 13),
    Sketcher.Constraint("PointOnObject", 8, 3, -1),
    Sketcher.Constraint("Radius", 3, Q("2 mm")),
    Sketcher.Constraint("Radius", 8, Q("126 mm")),
    Sketcher.Constraint("DistanceX", 0, 2, 0, 1, Q("75 mm")),
    Sketcher.Constraint("DistanceX", 12, 1, 12, 2, Q("71 mm")),
    Sketcher.Constraint("DistanceY", 1, 2, 1, 1, Q("65 mm")),
    Sketcher.Constraint("DistanceX", 3, 3, -1, 1, Q("41 mm")),
    Sketcher.Constraint("DistanceY", -1, 1, 3, 3, Q("52 mm")),
    Sketcher.Constraint("DistanceX", -1, 1, 7, 3, Q("48 mm")),
    Sketcher.Constraint("DistanceX", 8, 3, -1, 1, Q("47 mm")),
    Sketcher.Constraint("DistanceY", -1, 1, 11, 3, Q("60 mm")),
])
sketch7.setExpression("Constraints[27]", "Params.sketch7_radius")
sketch7.setExpression("Constraints[28]", "Params.sketch7_radius2")
sketch7.setExpression("Constraints[29]", "Params.sketch7_width")
sketch7.setExpression("Constraints[30]", "Params.sketch7_width2")
sketch7.setExpression("Constraints[31]", "Params.sketch7_height")
pocket3 = body.newObject("PartDesign::Pocket", "Pocket002")
pocket3.Profile = sketch7
pocket3.Type = "ThroughAll"
pocket3.Midplane = True
doc.recompute()

chamfer = body.newObject("PartDesign::Chamfer", "Chamfer")
chamfer.Base = (pocket3, edges_at(pocket3, [(93, 0, 13.101), (93, 113, 13.101)]))
chamfer.setExpression("Size", "Params.chamfer_size")
doc.recompute()

chamfer2 = body.newObject("PartDesign::Chamfer", "Chamfer001")
chamfer2.Base = (chamfer, edges_at(chamfer, [(-89, 115, -13), (-89, 140, -13)]))
chamfer2.setExpression("Size", "Params.chamfer2_size")
doc.recompute()

chamfer3 = body.newObject("PartDesign::Chamfer", "Chamfer002")
chamfer3.Base = (chamfer2, edges_at(chamfer2, [(-89, 0, -13), (-89, 50, -13)]))
chamfer3.setExpression("Size", "Params.chamfer3_size")

doc.recompute()
